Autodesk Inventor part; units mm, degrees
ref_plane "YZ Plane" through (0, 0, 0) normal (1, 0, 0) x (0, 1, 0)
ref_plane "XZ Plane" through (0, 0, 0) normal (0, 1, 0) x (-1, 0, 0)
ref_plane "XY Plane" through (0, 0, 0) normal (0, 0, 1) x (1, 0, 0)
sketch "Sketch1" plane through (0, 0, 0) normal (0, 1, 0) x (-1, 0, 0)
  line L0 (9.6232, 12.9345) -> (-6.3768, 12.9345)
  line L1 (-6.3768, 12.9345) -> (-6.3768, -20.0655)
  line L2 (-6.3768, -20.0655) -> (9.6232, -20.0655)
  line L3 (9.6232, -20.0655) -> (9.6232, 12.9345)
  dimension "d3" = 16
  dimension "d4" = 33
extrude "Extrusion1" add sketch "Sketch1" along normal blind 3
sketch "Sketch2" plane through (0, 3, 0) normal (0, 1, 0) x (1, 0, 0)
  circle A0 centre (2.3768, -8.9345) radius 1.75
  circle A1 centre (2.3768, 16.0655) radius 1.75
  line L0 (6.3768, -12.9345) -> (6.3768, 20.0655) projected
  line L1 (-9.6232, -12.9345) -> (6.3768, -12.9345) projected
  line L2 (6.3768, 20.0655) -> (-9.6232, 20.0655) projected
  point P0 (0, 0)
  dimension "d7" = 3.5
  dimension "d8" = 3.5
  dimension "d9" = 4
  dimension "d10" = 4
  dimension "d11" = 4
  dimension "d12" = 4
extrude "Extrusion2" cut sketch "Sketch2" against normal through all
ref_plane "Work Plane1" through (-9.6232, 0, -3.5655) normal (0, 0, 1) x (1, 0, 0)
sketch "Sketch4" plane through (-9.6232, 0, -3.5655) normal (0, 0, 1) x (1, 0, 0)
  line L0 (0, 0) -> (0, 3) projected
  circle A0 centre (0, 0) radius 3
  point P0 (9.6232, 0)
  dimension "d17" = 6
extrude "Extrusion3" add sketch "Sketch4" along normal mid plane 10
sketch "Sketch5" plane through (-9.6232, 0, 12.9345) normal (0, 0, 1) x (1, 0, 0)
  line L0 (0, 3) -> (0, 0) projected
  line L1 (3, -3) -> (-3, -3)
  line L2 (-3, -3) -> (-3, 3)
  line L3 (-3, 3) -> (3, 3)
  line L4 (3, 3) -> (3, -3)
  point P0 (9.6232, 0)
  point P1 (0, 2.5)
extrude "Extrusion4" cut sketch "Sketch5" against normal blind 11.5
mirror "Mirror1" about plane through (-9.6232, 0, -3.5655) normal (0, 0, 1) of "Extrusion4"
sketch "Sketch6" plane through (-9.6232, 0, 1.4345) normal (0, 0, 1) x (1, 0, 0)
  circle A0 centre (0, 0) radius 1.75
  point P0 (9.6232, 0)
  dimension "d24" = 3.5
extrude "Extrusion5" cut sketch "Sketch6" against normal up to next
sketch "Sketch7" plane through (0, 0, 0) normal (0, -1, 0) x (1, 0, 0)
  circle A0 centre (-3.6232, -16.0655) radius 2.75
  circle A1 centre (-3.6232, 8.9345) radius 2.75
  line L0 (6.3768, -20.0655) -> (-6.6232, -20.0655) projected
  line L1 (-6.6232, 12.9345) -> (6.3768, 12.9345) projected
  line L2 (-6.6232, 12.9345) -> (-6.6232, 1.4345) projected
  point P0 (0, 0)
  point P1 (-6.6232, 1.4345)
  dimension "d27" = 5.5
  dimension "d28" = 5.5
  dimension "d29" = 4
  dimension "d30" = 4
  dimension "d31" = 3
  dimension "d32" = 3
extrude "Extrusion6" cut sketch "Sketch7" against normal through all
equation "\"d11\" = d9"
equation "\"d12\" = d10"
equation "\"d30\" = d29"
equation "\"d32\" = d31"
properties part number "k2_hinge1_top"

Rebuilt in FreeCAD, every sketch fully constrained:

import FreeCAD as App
import Part
import Sketcher
from FreeCAD import Vector

doc = App.newDocument("Part")
body = doc.addObject("PartDesign::Body", "Body")

# Sketch on XZ plane
sketch1 = body.newObject("Sketcher::SketchObject", "Sketch")
sketch1.AttachmentSupport = (doc.getObject("XZ_Plane"), [""])
sketch1.MapMode = "FlatFace"
sketch1.addGeometry([
    Part.LineSegment(Vector(-10, -20, 0), Vector(-10, 13, 0)),
    Part.LineSegment(Vector(-10, 13, 0), Vector(6, 13, 0)),
    Part.LineSegment(Vector(6, 13, 0), Vector(6, -20, 0)),
    Part.LineSegment(Vector(6, -20, 0), Vector(-10, -20, 0)),
], False)
sketch1.addConstraint([
    Sketcher.Constraint("Coincident", 0, 2, 1, 1),
    Sketcher.Constraint("Coincident", 1, 2, 2, 1),
    Sketcher.Constraint("Coincident", 2, 2, 3, 1),
    Sketcher.Constraint("Coincident", 3, 2, 0, 1),
    Sketcher.Constraint("Vertical", 0),
    Sketcher.Constraint("Horizontal", 1),
    Sketcher.Constraint("Vertical", 2),
    Sketcher.Constraint("Horizontal", 3),
    Sketcher.Constraint("DistanceX", 1, 1, 1, 2, 16.0),
    Sketcher.Constraint("DistanceY", 0, 1, 0, 2, 33.0),
    Sketcher.Constraint("DistanceX", 0, 2, -1, 1, 9.6232),
    Sketcher.Constraint("DistanceY", -1, 1, 0, 2, 12.9345),
])
pad1 = body.newObject("PartDesign::Pad", "Pad")
pad1.Profile = sketch1
pad1.Length = 3
pad1.Reversed = True

# Sketch on XZ plane
sketch2 = body.newObject("Sketcher::SketchObject", "Sketch001")
sketch2.AttachmentSupport = (doc.getObject("XZ_Plane"), [""])
sketch2.MapMode = "FlatFace"
sketch2.AttachmentOffset = App.Placement(Vector(0, 0, -3), App.Rotation())
sketch2.addGeometry([
    Part.Circle(Vector(2.4, 8.9, 0), Vector(0, 0, 1), 1.8),
    Part.Circle(Vector(2.4, -16.1, 0), Vector(0, 0, 1), 1.8),
], False)
sketch2.addConstraint([
    Sketcher.Constraint("Equal", 0, 1),
    Sketcher.Constraint("Vertical", 0, 3, 1, 3),
    Sketcher.Constraint("Diameter", 0, 3.5),
    Sketcher.Constraint("DistanceY", 1, 3, 0, 3, 25.0),
    Sketcher.Constraint("DistanceX", -1, 1, 0, 3, 2.3768),
    Sketcher.Constraint("DistanceY", -1, 1, 0, 3, 8.9345),
])
pocket1 = body.newObject("PartDesign::Pocket", "Pocket")
pocket1.Profile = sketch2
pocket1.Type = "ThroughAll"
pocket1.Reversed = True

# Sketch on XY plane
sketch3 = body.newObject("Sketcher::SketchObject", "Sketch002")
sketch3.AttachmentSupport = (doc.getObject("XY_Plane"), [""])
sketch3.MapMode = "FlatFace"
sketch3.AttachmentOffset = App.Placement(Vector(0, 0, -3.5655), App.Rotation())
sketch3.addGeometry(Part.Circle(Vector(-9.6, 0, 0), Vector(0, 0, 1), 3), False)
sketch3.addConstraint([
    Sketcher.Constraint("PointOnObject", 0, 3, -1),
    Sketcher.Constraint("Diameter", 0, 6.0),
    Sketcher.Constraint("DistanceX", 0, 3, -1, 1, 9.6232),
])
pad2 = body.newObject("PartDesign::Pad", "Pad001")
pad2.Profile = sketch3
pad2.Length = 10
pad2.Midplane = True

# Sketch on XY plane
sketch4 = body.newObject("Sketcher::SketchObject", "Sketch003")
sketch4.AttachmentSupport = (doc.getObject("XY_Plane"), [""])
sketch4.MapMode = "FlatFace"
sketch4.AttachmentOffset = App.Placement(Vector(0, 0, 12.9345), App.Rotation())
sketch4.addGeometry([
    Part.LineSegment(Vector(-13, -3, 0), Vector(-7, -3, 0)),
    Part.LineSegment(Vector(-7, -3, 0), Vector(-7, 3, 0)),
    Part.LineSegment(Vector(-7, 3, 0), Vector(-13, 3, 0)),
    Part.LineSegment(Vector(-13, 3, 0), Vector(-13, -3, 0)),
], False)
sketch4.addConstraint([
    Sketcher.Constraint("Coincident", 0, 2, 1, 1),
    Sketcher.Constraint("Coincident", 1, 2, 2, 1),
    Sketcher.Constraint("Coincident", 2, 2, 3, 1),
    Sketcher.Constraint("Coincident", 3, 2, 0, 1),
    Sketcher.Constraint("Horizontal", 0),
    Sketcher.Constraint("Vertical", 1),
    Sketcher.Constraint("Horizontal", 2),
    Sketcher.Constraint("Vertical", 3),
    Sketcher.Constraint("Equal", 2, 1),
    Sketcher.Constraint("DistanceX", 0, 1, 0, 2, 6.0),
    Sketcher.Constraint("DistanceY", 0, 2, -1, 1, 3.0),
    Sketcher.Constraint("DistanceX", 0, 2, -1, 1, 6.6232),
])
pocket2 = body.newObject("PartDesign::Pocket", "Pocket001")
pocket2.Profile = sketch4
pocket2.Length = 11.5
doc.recompute()

datumplane = body.newObject("PartDesign::Plane", "DatumPlane")
datumplane.AttachmentSupport = (doc.getObject("XY_Plane"), [""])
datumplane.MapMode = "FlatFace"
datumplane.AttachmentOffset = App.Placement(Vector(0, 0, -3.5655), App.Rotation())
mirrored = body.newObject("PartDesign::Mirrored", "Mirrored")
mirrored.Originals = [pocket2]
mirrored.MirrorPlane = (datumplane, [""])
body.Tip = mirrored

# Sketch on XY plane
sketch5 = body.newObject("Sketcher::SketchObject", "Sketch004")
sketch5.AttachmentSupport = (doc.getObject("XY_Plane"), [""])
sketch5.MapMode = "FlatFace"
sketch5.AttachmentOffset = App.Placement(Vector(0, 0, 1.4345), App.Rotation())
sketch5.addGeometry(Part.Circle(Vector(-9.6, 0, 0), Vector(0, 0, 1), 1.8), False)
sketch5.addConstraint([
    Sketcher.Constraint("PointOnObject", 0, 3, -1),
    Sketcher.Constraint("Diameter", 0, 3.5),
    Sketcher.Constraint("DistanceX", 0, 3, -1, 1, 9.6232),
])
pocket3 = body.newObject("PartDesign::Pocket", "Pocket002")
pocket3.Profile = sketch5
pocket3.Type = "UpToFirst"

# Sketch on XZ plane
sketch6 = body.newObject("Sketcher::SketchObject", "Sketch005")
sketch6.AttachmentSupport = (doc.getObject("XZ_Plane"), [""])
sketch6.MapMode = "FlatFace"
sketch6.addGeometry([
    Part.Circle(Vector(-3.6, -16.1, 0), Vector(0, 0, 1), 2.8),
    Part.Circle(Vector(-3.6, 8.9, 0), Vector(0, 0, 1), 2.8),
], False)
sketch6.addConstraint([
    Sketcher.Constraint("Equal", 0, 1),
    Sketcher.Constraint("Vertical", 0, 3, 1, 3),
    Sketcher.Constraint("Diameter", 0, 5.5),
    Sketcher.Constraint("DistanceY", 0, 3, 1, 3, 25.0),
    Sketcher.Constraint("DistanceX", 0, 3, -1, 1, 3.6232),
    Sketcher.Constraint("DistanceY", 0, 3, -1, 1, 16.0655),
])
pocket4 = body.newObject("PartDesign::Pocket", "Pocket003")
pocket4.Profile = sketch6
pocket4.Type = "ThroughAll"

doc.recompute()
